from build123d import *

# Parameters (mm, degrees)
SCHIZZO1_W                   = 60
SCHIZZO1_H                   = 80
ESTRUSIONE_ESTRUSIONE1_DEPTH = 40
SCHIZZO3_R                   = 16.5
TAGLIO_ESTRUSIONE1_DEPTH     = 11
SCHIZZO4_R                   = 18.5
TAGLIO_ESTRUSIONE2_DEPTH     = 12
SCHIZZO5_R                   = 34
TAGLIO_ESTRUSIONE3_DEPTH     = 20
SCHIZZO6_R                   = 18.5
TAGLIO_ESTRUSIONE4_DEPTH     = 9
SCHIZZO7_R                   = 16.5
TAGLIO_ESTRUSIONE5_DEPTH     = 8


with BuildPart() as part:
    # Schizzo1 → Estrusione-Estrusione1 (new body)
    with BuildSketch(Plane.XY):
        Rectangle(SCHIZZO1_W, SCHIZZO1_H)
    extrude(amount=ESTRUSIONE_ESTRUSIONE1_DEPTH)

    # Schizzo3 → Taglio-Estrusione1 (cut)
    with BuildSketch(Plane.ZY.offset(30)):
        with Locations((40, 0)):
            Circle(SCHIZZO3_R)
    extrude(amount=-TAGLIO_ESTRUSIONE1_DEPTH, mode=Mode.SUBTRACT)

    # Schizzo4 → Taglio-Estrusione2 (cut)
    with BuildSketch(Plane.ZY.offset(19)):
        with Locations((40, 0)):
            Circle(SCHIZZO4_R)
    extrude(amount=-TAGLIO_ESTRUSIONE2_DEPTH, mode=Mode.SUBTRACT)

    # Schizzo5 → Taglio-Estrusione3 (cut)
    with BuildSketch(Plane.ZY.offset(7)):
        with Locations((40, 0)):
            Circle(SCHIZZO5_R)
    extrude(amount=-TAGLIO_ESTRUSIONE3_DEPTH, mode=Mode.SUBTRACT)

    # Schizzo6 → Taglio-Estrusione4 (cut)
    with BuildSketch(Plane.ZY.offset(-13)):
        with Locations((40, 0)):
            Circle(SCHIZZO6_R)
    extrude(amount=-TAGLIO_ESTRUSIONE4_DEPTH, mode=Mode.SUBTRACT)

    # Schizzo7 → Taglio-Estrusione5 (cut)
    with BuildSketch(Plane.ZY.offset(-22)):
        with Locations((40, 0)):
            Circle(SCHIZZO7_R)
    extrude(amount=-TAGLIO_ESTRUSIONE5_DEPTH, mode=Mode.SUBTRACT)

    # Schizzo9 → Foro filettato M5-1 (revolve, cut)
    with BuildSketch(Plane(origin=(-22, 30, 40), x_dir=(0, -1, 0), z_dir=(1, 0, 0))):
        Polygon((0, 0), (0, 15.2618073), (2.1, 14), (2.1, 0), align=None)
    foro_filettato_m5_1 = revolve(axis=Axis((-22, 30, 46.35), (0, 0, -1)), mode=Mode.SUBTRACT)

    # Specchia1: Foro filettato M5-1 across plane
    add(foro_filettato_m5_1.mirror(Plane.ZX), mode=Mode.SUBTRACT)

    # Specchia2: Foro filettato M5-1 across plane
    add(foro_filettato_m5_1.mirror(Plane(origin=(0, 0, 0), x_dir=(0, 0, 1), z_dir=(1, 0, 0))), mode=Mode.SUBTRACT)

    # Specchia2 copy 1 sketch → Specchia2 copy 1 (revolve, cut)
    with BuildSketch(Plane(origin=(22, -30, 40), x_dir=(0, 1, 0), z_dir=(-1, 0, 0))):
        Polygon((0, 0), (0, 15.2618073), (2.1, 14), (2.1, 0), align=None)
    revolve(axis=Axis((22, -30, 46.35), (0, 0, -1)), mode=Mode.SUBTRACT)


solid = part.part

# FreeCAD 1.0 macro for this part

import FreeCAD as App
import Part
import Sketcher

V = App.Vector
Q = App.Units.Quantity


def add_polygon(sketch, points):
    """Adds a closed chain of lines whose ends are joined by coincident constraints."""
    first, n = sketch.GeometryCount, len(points)
    for a, b in zip(points, points[1:] + points[:1]):
        sketch.addGeometry(Part.LineSegment(App.Vector(*a, 0), App.Vector(*b, 0)), False)
    for i in range(n):
        sketch.addConstraint(Sketcher.Constraint("Coincident", first + i, 2, first + (i + 1) % n, 1))

doc = App.newDocument("Part")
params = doc.addObject("Spreadsheet::Sheet", "Params")
for row, (alias, value) in enumerate([
    ("sketch1_width", "60 mm"),
    ("sketch1_height", "80 mm"),
    ("pad1_length", "40 mm"),
    ("sketch2_diameter", "33 mm"),
    ("pocket1_length", "11 mm"),
    ("sketch3_diameter", "37 mm"),
    ("pocket2_length", "12 mm"),
    ("sketch4_diameter", "68 mm"),
    ("pocket3_length", "20 mm"),
    ("sketch5_diameter", "37 mm"),
    ("pocket4_length", "9 mm"),
    ("sketch6_diameter", "33 mm"),
    ("pocket5_length", "8 mm"),
    ("sketch7_height", "14 mm"),
    ("sketch7_width", "2.1 mm"),
    ("groove_angle", "360 deg"),
    ("sketch8_height", "14 mm"),
    ("sketch8_width", "2.1 mm"),
    ("groove2_angle", "360 deg"),
], start=1):
    params.set(f"A{row}", alias)
    params.set(f"B{row}", "=" + value)
    params.setAlias(f"B{row}", alias)

body = doc.addObject("PartDesign::Body", "Body")

sketch1 = body.newObject("Sketcher::SketchObject", "Sketch")
sketch1.AttachmentSupport = (doc.getObject("XY_Plane"), [""])
sketch1.MapMode = "FlatFace"
add_polygon(sketch1, [(-30, 40), (-30, -40), (30, -40), (30, 40)])
sketch1.addConstraint([
    Sketcher.Constraint("Vertical", 0),
    Sketcher.Constraint("Horizontal", 1),
    Sketcher.Constraint("Vertical", 2),
    Sketcher.Constraint("Horizontal", 3),
    Sketcher.Constraint("Symmetric", 0, 2, 2, 2, -1, 1),
    Sketcher.Constraint("DistanceX", 1, 1, 1, 2, 60.0),
    Sketcher.Constraint("DistanceY", 0, 2, 0, 1, 80.0),
])
sketch1.setExpression("Constraints[9]", "Params.sketch1_width")
sketch1.setExpression("Constraints[10]", "Params.sketch1_height")
pad1 = body.newObject("PartDesign::Pad", "Pad")
pad1.Profile = sketch1
pad1.setExpression("Length", "Params.pad1_length")

sketch2 = body.newObject("Sketcher::SketchObject", "Sketch001")
sketch2.AttachmentSupport = (doc.getObject("YZ_Plane"), [""])
sketch2.MapMode = "FlatFace"
sketch2.AttachmentOffset = App.Placement(V(0, 0, -30), App.Rotation())
sketch2.addGeometry(Part.Circle(V(0, 40, 0), V(0, 0, 1), 16.5), False)
sketch2.addConstraint([
    Sketcher.Constraint("PointOnObject", 0, 3, -2),
    Sketcher.Constraint("Diameter", 0, 33.0),
    Sketcher.Constraint("DistanceY", -1, 1, 0, 3, 40.0),
])
sketch2.setExpression("Constraints[1]", "Params.sketch2_diameter")
pocket1 = body.newObject("PartDesign::Pocket", "Pocket")
pocket1.Profile = sketch2
pocket1.setExpression("Length", "Params.pocket1_length")
pocket1.Reversed = True

sketch3 = body.newObject("Sketcher::SketchObject", "Sketch002")
sketch3.AttachmentSupport = (doc.getObject("YZ_Plane"), [""])
sketch3.MapMode = "FlatFace"
sketch3.AttachmentOffset = App.Placement(V(0, 0, -19), App.Rotation())
sketch3.addGeometry(Part.Circle(V(0, 40, 0), V(0, 0, 1), 18.5), False)
sketch3.addConstraint([
    Sketcher.Constraint("PointOnObject", 0, 3, -2),
    Sketcher.Constraint("Diameter", 0, 37.0),
    Sketcher.Constraint("DistanceY", -1, 1, 0, 3, 40.0),
])
sketch3.setExpression("Constraints[1]", "Params.sketch3_diameter")
pocket2 = body.newObject("PartDesign::Pocket", "Pocket001")
pocket2.Profile = sketch3
pocket2.setExpression("Length", "Params.pocket2_length")
pocket2.Reversed = True

sketch4 = body.newObject("Sketcher::SketchObject", "Sketch003")
sketch4.AttachmentSupport = (doc.getObject("YZ_Plane"), [""])
sketch4.MapMode = "FlatFace"
sketch4.AttachmentOffset = App.Placement(V(0, 0, -7), App.Rotation())
sketch4.addGeometry(Part.Circle(V(0, 40, 0), V(0, 0, 1), 34), False)
sketch4.addConstraint([
    Sketcher.Constraint("PointOnObject", 0, 3, -2),
    Sketcher.Constraint("Diameter", 0, 68.0),
    Sketcher.Constraint("DistanceY", -1, 1, 0, 3, 40.0),
])
sketch4.setExpression("Constraints[1]", "Params.sketch4_diameter")
pocket3 = body.newObject("PartDesign::Pocket", "Pocket002")
pocket3.Profile = sketch4
pocket3.setExpression("Length", "Params.pocket3_length")
pocket3.Reversed = True

sketch5 = body.newObject("Sketcher::SketchObject", "Sketch004")
sketch5.AttachmentSupport = (doc.getObject("YZ_Plane"), [""])
sketch5.MapMode = "FlatFace"
sketch5.AttachmentOffset = App.Placement(V(0, 0, 13), App.Rotation())
sketch5.addGeometry(Part.Circle(V(0, 40, 0), V(0, 0, 1), 18.5), False)
sketch5.addConstraint([
    Sketcher.Constraint("PointOnObject", 0, 3, -2),
    Sketcher.Constraint("Diameter", 0, 37.0),
    Sketcher.Constraint("DistanceY", -1, 1, 0, 3, 40.0),
])
sketch5.setExpression("Constraints[1]", "Params.sketch5_diameter")
pocket4 = body.newObject("PartDesign::Pocket", "Pocket003")
pocket4.Profile = sketch5
pocket4.setExpression("Length", "Params.pocket4_length")
pocket4.Reversed = True

sketch6 = body.newObject("Sketcher::SketchObject", "Sketch005")
sketch6.AttachmentSupport = (doc.getObject("YZ_Plane"), [""])
sketch6.MapMode = "FlatFace"
sketch6.AttachmentOffset = App.Placement(V(0, 0, 22), App.Rotation())
sketch6.addGeometry(Part.Circle(V(0, 40, 0), V(0, 0, 1), 16.5), False)
sketch6.addConstraint([
    Sketcher.Constraint("PointOnObject", 0, 3, -2),
    Sketcher.Constraint("Diameter", 0, 33.0),
    Sketcher.Constraint("DistanceY", -1, 1, 0, 3, 40.0),
])
sketch6.setExpression("Constraints[1]", "Params.sketch6_diameter")
pocket5 = body.newObject("PartDesign::Pocket", "Pocket004")
pocket5.Profile = sketch6
pocket5.setExpression("Length", "Params.pocket5_length")
pocket5.Reversed = True

sketch7 = body.newObject("Sketcher::SketchObject", "Sketch006")
sketch7.AttachmentSupport = (doc.getObject("YZ_Plane"), [""])
sketch7.MapMode = "FlatFace"
sketch7.AttachmentOffset = App.Placement(V(0, 0, -22), App.Rotation())
add_polygon(sketch7, [(30, 24.738193), (30, 40), (27.9, 40), (27.9, 26)])
sketch7.addGeometry(Part.LineSegment(V(30, 40, 0), V(30, 24.738193, 0)), True)
sketch7.addConstraint([
    Sketcher.Constraint("Vertical", 0),
    Sketcher.Constraint("Horizontal", 1),
    Sketcher.Constraint("Vertical", 2),
    Sketcher.Constraint("Vertical", 4),
    Sketcher.Constraint("Coincident", 4, 1, 0, 2),
    Sketcher.Constraint("Equal", 0, 4),
    Sketcher.Constraint("DistanceY", 2, 2, 2, 1, 14.0),
    Sketcher.Constraint("Angle", 3, Q("-31 deg")),
    Sketcher.Constraint("DistanceX", 1, 2, 1, 1, 2.1),
    Sketcher.Constraint("DistanceX", -1, 1, 0, 2, 30.0),
    Sketcher.Constraint("DistanceY", -1, 1, 0, 2, 40.0),
])
sketch7.setExpression("Constraints[10]", "Params.sketch7_height")
sketch7.setExpression("Constraints[12]", "Params.sketch7_width")
groove = body.newObject("PartDesign::Groove", "Groove")
groove.Profile = sketch7
groove.ReferenceAxis = (sketch7, ["Axis0"])
groove.setExpression("Angle", "Params.groove_angle")
doc.recompute()

mirrored = body.newObject("PartDesign::Mirrored", "Mirrored")
mirrored.Originals = [groove]
mirrored.MirrorPlane = (doc.getObject("XZ_Plane"), [""])
body.Tip = mirrored
doc.recompute()

mirrored2 = body.newObject("PartDesign::Mirrored", "Mirrored001")
mirrored2.Originals = [groove]
mirrored2.MirrorPlane = (doc.getObject("YZ_Plane"), [""])
body.Tip = mirrored2

sketch8 = body.newObject("Sketcher::SketchObject", "Sketch007")
sketch8.AttachmentSupport = (doc.getObject("YZ_Plane"), [""])
sketch8.MapMode = "FlatFace"
sketch8.AttachmentOffset = App.Placement(V(0, 0, 22), App.Rotation())
add_polygon(sketch8, [(-30, 24.738193), (-30, 40), (-27.9, 40), (-27.9, 26)])
sketch8.addGeometry(Part.LineSegment(V(-30, 40, 0), V(-30, 24.738193, 0)), True)
sketch8.addConstraint([
    Sketcher.Constraint("Vertical", 0),
    Sketcher.Constraint("Horizontal", 1),
    Sketcher.Constraint("Vertical", 2),
    Sketcher.Constraint("Vertical", 4),
    Sketcher.Constraint("Coincident", 4, 1, 0, 2),
    Sketcher.Constraint("Equal", 0, 4),
    Sketcher.Constraint("DistanceY", 2, 2, 2, 1, 14.0),
    Sketcher.Constraint("Angle", 3, Q("-149 deg")),
    Sketcher.Constraint("DistanceX", 1, 1, 1, 2, 2.1),
    Sketcher.Constraint("DistanceX", 0, 2, -1, 1, 30.0),
    Sketcher.Constraint("DistanceY", -1, 1, 0, 2, 40.0),
])
sketch8.setExpression("Constraints[10]", "Params.sketch8_height")
sketch8.setExpression("Constraints[12]", "Params.sketch8_width")
groove2 = body.newObject("PartDesign::Groove", "Groove001")
groove2.Profile = sketch8
groove2.ReferenceAxis = (sketch8, ["Axis0"])
groove2.setExpression("Angle", "Params.groove2_angle")

doc.recompute()
